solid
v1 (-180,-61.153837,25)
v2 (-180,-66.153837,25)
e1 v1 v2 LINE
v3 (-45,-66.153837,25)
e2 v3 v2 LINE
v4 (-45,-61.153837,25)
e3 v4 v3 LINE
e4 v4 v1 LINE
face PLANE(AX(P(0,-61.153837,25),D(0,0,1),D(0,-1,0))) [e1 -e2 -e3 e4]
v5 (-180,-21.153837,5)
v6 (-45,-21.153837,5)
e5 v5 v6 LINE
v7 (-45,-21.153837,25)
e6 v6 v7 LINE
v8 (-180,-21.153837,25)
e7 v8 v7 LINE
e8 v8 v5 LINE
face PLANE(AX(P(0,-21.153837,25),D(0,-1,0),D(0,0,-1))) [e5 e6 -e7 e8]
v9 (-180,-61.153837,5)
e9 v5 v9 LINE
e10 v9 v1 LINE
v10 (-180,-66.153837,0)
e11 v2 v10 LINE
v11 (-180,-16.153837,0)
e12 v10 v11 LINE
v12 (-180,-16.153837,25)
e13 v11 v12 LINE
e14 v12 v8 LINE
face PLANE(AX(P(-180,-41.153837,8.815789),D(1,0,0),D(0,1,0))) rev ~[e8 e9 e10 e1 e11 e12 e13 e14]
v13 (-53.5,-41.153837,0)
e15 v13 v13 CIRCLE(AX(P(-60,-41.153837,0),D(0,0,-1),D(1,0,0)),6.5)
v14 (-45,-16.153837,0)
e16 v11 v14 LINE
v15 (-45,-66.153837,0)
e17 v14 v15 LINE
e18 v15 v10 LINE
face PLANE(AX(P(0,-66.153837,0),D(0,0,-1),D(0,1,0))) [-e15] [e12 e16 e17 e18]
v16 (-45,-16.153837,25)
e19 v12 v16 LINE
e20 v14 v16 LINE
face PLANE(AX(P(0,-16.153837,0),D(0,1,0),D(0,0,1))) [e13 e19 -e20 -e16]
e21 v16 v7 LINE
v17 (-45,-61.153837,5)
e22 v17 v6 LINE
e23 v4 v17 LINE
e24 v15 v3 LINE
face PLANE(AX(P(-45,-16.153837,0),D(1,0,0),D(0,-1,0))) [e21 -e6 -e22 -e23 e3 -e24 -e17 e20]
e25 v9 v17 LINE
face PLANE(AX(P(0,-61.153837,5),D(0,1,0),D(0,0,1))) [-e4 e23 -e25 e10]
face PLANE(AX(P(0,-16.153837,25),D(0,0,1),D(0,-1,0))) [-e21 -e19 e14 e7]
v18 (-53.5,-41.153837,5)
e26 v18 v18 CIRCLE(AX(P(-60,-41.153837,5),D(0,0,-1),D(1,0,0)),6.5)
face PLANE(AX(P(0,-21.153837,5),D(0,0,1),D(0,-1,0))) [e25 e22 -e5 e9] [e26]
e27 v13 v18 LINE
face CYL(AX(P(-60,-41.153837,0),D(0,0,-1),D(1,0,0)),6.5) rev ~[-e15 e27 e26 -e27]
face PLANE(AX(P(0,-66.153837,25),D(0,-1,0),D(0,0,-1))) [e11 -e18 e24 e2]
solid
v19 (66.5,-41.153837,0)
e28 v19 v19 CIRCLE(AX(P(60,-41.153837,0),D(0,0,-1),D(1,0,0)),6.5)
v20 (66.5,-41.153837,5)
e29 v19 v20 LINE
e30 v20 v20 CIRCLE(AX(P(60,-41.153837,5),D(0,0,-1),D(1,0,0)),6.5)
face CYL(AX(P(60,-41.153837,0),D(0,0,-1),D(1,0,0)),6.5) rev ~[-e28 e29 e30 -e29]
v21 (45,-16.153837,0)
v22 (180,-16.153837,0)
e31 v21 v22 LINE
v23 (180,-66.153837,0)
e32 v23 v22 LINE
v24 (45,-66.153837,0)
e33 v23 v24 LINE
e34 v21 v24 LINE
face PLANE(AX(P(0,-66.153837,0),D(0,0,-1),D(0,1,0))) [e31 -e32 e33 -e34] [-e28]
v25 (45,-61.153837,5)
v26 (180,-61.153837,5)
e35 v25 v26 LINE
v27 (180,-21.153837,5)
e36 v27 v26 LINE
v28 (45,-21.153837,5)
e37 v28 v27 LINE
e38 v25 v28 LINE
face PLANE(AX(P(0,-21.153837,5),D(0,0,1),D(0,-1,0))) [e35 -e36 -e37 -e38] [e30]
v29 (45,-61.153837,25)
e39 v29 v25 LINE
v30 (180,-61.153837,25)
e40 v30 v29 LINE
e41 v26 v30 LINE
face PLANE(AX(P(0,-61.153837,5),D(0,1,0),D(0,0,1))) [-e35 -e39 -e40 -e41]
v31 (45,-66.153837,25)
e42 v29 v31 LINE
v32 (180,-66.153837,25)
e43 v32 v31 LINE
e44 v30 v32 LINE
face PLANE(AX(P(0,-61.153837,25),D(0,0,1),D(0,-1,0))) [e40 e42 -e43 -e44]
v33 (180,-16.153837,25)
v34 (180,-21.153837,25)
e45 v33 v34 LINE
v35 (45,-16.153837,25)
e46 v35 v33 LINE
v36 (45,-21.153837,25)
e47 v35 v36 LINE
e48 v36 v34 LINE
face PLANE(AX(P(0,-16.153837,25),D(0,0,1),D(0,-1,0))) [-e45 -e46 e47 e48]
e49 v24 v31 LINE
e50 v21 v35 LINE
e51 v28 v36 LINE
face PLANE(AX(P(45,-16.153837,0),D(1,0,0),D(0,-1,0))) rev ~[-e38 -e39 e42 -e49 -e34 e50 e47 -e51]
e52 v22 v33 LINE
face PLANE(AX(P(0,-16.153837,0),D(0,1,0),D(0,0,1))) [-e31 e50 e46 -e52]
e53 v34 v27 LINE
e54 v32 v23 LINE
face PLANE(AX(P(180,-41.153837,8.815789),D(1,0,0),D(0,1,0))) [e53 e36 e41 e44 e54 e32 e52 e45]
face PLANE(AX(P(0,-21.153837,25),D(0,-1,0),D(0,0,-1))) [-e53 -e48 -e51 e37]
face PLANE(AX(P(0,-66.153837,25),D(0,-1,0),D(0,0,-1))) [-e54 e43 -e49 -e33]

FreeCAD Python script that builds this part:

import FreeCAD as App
import Part
import Sketcher

V = App.Vector

doc = App.newDocument("Part")
body = doc.addObject("PartDesign::Body", "Body")
body.AllowCompound = True

sketch1 = body.newObject("Sketcher::SketchObject", "Sketch")
sketch1.AttachmentSupport = (doc.getObject("YZ_Plane"), [""])
sketch1.MapMode = "FlatFace"
sketch1.addGeometry(Part.LineSegment(V(-66.2, 0, 0), V(-16.2, 0, 0)), False)
sketch1.addGeometry(Part.LineSegment(V(-16.2, 0, 0), V(-16.2, 25, 0)), False)
sketch1.addGeometry(Part.LineSegment(V(-16.2, 25, 0), V(-21.2, 25, 0)), False)
sketch1.addGeometry(Part.LineSegment(V(-21.2, 25, 0), V(-21.2, 5, 0)), False)
sketch1.addGeometry(Part.LineSegment(V(-21.2, 5, 0), V(-61.2, 5, 0)), False)
sketch1.addGeometry(Part.LineSegment(V(-61.2, 5, 0), V(-61.2, 25, 0)), False)
sketch1.addGeometry(Part.LineSegment(V(-61.2, 25, 0), V(-66.2, 25, 0)), False)
sketch1.addGeometry(Part.LineSegment(V(-66.2, 25, 0), V(-66.2, 0, 0)), False)
sketch1.addConstraint(Sketcher.Constraint("Coincident", 0, 2, 1, 1))
sketch1.addConstraint(Sketcher.Constraint("Coincident", 1, 2, 2, 1))
sketch1.addConstraint(Sketcher.Constraint("Coincident", 2, 2, 3, 1))
sketch1.addConstraint(Sketcher.Constraint("Coincident", 3, 2, 4, 1))
sketch1.addConstraint(Sketcher.Constraint("Coincident", 4, 2, 5, 1))
sketch1.addConstraint(Sketcher.Constraint("Coincident", 5, 2, 6, 1))
sketch1.addConstraint(Sketcher.Constraint("Coincident", 6, 2, 7, 1))
sketch1.addConstraint(Sketcher.Constraint("Coincident", 7, 2, 0, 1))
sketch1.addConstraint(Sketcher.Constraint("Horizontal", 0))
sketch1.addConstraint(Sketcher.Constraint("Vertical", 1))
sketch1.addConstraint(Sketcher.Constraint("Horizontal", 2))
sketch1.addConstraint(Sketcher.Constraint("Vertical", 3))
sketch1.addConstraint(Sketcher.Constraint("Horizontal", 4))
sketch1.addConstraint(Sketcher.Constraint("Vertical", 5))
sketch1.addConstraint(Sketcher.Constraint("Horizontal", 6))
sketch1.addConstraint(Sketcher.Constraint("Vertical", 7))
sketch1.addConstraint(Sketcher.Constraint("PointOnObject", 0, 2, -1))
sketch1.addConstraint(Sketcher.Constraint("Horizontal", 2, 2, 5, 2))
sketch1.addConstraint(Sketcher.Constraint("Equal", 2, 6))
sketch1.addConstraint(Sketcher.Constraint("DistanceX", 0, 1, 0, 2, 50.0))
sketch1.addConstraint(Sketcher.Constraint("DistanceX", 2, 2, 2, 1, 5.0))
sketch1.addConstraint(Sketcher.Constraint("DistanceY", 1, 1, 1, 2, 25.0))
sketch1.addConstraint(Sketcher.Constraint("DistanceY", 3, 2, 3, 1, 20.0))
sketch1.addConstraint(Sketcher.Constraint("DistanceX", 0, 2, -1, 1, 16.153837))
pad1 = body.newObject("PartDesign::Pad", "Pad")
pad1.Profile = sketch1
pad1.Length = 360
pad1.Midplane = True

sketch2 = body.newObject("Sketcher::SketchObject", "Sketch001")
sketch2.AttachmentSupport = (doc.getObject("XY_Plane"), [""])
sketch2.MapMode = "FlatFace"
sketch2.addGeometry(Part.Circle(V(-60, -41, 0), V(0, 0, 1), 6), False)
sketch2.addGeometry(Part.Circle(V(60, -41, 0), V(0, 0, 1), 6), False)
sketch2.addConstraint(Sketcher.Constraint("Equal", 0, 1))
sketch2.addConstraint(Sketcher.Constraint("Symmetric", 0, 3, 1, 3, -2))
sketch2.addConstraint(Sketcher.Constraint("Diameter", 0, 13.0))
sketch2.addConstraint(Sketcher.Constraint("DistanceX", 0, 3, -1, 1, 60.0))
sketch2.addConstraint(Sketcher.Constraint("DistanceY", 0, 3, -1, 1, 41.153837))
pocket1 = body.newObject("PartDesign::Pocket", "Pocket")
pocket1.Profile = sketch2
pocket1.Length = 25
pocket1.Reversed = True

sketch3 = body.newObject("Sketcher::SketchObject", "Sketch002")
sketch3.AttachmentSupport = (doc.getObject("XY_Plane"), [""])
sketch3.MapMode = "FlatFace"
sketch3.addGeometry(Part.LineSegment(V(-45, -66, 0), V(-45, -16, 0)), False)
sketch3.addGeometry(Part.LineSegment(V(-45, -16, 0), V(45, -16, 0)), False)
sketch3.addGeometry(Part.LineSegment(V(45, -16, 0), V(45, -66, 0)), False)
sketch3.addGeometry(Part.LineSegment(V(45, -66, 0), V(-45, -66, 0)), False)
sketch3.addConstraint(Sketcher.Constraint("Coincident", 0, 2, 1, 1))
sketch3.addConstraint(Sketcher.Constraint("Coincident", 1, 2, 2, 1))
sketch3.addConstraint(Sketcher.Constraint("Coincident", 2, 2, 3, 1))
sketch3.addConstraint(Sketcher.Constraint("Coincident", 3, 2, 0, 1))
sketch3.addConstraint(Sketcher.Constraint("Vertical", 0))
sketch3.addConstraint(Sketcher.Constraint("Horizontal", 1))
sketch3.addConstraint(Sketcher.Constraint("Vertical", 2))
sketch3.addConstraint(Sketcher.Constraint("Horizontal", 3))
sketch3.addConstraint(Sketcher.Constraint("DistanceX", 1, 1, 1, 2, 90.0))
sketch3.addConstraint(Sketcher.Constraint("DistanceY", 0, 1, 0, 2, 50.0))
sketch3.addConstraint(Sketcher.Constraint("DistanceX", 0, 2, -1, 1, 45.0))
sketch3.addConstraint(Sketcher.Constraint("DistanceY", 0, 2, -1, 1, 16.153837))
pocket2 = body.newObject("PartDesign::Pocket", "Pocket001")
pocket2.Profile = sketch3
pocket2.Length = 25
pocket2.Reversed = True

doc.recompute()
